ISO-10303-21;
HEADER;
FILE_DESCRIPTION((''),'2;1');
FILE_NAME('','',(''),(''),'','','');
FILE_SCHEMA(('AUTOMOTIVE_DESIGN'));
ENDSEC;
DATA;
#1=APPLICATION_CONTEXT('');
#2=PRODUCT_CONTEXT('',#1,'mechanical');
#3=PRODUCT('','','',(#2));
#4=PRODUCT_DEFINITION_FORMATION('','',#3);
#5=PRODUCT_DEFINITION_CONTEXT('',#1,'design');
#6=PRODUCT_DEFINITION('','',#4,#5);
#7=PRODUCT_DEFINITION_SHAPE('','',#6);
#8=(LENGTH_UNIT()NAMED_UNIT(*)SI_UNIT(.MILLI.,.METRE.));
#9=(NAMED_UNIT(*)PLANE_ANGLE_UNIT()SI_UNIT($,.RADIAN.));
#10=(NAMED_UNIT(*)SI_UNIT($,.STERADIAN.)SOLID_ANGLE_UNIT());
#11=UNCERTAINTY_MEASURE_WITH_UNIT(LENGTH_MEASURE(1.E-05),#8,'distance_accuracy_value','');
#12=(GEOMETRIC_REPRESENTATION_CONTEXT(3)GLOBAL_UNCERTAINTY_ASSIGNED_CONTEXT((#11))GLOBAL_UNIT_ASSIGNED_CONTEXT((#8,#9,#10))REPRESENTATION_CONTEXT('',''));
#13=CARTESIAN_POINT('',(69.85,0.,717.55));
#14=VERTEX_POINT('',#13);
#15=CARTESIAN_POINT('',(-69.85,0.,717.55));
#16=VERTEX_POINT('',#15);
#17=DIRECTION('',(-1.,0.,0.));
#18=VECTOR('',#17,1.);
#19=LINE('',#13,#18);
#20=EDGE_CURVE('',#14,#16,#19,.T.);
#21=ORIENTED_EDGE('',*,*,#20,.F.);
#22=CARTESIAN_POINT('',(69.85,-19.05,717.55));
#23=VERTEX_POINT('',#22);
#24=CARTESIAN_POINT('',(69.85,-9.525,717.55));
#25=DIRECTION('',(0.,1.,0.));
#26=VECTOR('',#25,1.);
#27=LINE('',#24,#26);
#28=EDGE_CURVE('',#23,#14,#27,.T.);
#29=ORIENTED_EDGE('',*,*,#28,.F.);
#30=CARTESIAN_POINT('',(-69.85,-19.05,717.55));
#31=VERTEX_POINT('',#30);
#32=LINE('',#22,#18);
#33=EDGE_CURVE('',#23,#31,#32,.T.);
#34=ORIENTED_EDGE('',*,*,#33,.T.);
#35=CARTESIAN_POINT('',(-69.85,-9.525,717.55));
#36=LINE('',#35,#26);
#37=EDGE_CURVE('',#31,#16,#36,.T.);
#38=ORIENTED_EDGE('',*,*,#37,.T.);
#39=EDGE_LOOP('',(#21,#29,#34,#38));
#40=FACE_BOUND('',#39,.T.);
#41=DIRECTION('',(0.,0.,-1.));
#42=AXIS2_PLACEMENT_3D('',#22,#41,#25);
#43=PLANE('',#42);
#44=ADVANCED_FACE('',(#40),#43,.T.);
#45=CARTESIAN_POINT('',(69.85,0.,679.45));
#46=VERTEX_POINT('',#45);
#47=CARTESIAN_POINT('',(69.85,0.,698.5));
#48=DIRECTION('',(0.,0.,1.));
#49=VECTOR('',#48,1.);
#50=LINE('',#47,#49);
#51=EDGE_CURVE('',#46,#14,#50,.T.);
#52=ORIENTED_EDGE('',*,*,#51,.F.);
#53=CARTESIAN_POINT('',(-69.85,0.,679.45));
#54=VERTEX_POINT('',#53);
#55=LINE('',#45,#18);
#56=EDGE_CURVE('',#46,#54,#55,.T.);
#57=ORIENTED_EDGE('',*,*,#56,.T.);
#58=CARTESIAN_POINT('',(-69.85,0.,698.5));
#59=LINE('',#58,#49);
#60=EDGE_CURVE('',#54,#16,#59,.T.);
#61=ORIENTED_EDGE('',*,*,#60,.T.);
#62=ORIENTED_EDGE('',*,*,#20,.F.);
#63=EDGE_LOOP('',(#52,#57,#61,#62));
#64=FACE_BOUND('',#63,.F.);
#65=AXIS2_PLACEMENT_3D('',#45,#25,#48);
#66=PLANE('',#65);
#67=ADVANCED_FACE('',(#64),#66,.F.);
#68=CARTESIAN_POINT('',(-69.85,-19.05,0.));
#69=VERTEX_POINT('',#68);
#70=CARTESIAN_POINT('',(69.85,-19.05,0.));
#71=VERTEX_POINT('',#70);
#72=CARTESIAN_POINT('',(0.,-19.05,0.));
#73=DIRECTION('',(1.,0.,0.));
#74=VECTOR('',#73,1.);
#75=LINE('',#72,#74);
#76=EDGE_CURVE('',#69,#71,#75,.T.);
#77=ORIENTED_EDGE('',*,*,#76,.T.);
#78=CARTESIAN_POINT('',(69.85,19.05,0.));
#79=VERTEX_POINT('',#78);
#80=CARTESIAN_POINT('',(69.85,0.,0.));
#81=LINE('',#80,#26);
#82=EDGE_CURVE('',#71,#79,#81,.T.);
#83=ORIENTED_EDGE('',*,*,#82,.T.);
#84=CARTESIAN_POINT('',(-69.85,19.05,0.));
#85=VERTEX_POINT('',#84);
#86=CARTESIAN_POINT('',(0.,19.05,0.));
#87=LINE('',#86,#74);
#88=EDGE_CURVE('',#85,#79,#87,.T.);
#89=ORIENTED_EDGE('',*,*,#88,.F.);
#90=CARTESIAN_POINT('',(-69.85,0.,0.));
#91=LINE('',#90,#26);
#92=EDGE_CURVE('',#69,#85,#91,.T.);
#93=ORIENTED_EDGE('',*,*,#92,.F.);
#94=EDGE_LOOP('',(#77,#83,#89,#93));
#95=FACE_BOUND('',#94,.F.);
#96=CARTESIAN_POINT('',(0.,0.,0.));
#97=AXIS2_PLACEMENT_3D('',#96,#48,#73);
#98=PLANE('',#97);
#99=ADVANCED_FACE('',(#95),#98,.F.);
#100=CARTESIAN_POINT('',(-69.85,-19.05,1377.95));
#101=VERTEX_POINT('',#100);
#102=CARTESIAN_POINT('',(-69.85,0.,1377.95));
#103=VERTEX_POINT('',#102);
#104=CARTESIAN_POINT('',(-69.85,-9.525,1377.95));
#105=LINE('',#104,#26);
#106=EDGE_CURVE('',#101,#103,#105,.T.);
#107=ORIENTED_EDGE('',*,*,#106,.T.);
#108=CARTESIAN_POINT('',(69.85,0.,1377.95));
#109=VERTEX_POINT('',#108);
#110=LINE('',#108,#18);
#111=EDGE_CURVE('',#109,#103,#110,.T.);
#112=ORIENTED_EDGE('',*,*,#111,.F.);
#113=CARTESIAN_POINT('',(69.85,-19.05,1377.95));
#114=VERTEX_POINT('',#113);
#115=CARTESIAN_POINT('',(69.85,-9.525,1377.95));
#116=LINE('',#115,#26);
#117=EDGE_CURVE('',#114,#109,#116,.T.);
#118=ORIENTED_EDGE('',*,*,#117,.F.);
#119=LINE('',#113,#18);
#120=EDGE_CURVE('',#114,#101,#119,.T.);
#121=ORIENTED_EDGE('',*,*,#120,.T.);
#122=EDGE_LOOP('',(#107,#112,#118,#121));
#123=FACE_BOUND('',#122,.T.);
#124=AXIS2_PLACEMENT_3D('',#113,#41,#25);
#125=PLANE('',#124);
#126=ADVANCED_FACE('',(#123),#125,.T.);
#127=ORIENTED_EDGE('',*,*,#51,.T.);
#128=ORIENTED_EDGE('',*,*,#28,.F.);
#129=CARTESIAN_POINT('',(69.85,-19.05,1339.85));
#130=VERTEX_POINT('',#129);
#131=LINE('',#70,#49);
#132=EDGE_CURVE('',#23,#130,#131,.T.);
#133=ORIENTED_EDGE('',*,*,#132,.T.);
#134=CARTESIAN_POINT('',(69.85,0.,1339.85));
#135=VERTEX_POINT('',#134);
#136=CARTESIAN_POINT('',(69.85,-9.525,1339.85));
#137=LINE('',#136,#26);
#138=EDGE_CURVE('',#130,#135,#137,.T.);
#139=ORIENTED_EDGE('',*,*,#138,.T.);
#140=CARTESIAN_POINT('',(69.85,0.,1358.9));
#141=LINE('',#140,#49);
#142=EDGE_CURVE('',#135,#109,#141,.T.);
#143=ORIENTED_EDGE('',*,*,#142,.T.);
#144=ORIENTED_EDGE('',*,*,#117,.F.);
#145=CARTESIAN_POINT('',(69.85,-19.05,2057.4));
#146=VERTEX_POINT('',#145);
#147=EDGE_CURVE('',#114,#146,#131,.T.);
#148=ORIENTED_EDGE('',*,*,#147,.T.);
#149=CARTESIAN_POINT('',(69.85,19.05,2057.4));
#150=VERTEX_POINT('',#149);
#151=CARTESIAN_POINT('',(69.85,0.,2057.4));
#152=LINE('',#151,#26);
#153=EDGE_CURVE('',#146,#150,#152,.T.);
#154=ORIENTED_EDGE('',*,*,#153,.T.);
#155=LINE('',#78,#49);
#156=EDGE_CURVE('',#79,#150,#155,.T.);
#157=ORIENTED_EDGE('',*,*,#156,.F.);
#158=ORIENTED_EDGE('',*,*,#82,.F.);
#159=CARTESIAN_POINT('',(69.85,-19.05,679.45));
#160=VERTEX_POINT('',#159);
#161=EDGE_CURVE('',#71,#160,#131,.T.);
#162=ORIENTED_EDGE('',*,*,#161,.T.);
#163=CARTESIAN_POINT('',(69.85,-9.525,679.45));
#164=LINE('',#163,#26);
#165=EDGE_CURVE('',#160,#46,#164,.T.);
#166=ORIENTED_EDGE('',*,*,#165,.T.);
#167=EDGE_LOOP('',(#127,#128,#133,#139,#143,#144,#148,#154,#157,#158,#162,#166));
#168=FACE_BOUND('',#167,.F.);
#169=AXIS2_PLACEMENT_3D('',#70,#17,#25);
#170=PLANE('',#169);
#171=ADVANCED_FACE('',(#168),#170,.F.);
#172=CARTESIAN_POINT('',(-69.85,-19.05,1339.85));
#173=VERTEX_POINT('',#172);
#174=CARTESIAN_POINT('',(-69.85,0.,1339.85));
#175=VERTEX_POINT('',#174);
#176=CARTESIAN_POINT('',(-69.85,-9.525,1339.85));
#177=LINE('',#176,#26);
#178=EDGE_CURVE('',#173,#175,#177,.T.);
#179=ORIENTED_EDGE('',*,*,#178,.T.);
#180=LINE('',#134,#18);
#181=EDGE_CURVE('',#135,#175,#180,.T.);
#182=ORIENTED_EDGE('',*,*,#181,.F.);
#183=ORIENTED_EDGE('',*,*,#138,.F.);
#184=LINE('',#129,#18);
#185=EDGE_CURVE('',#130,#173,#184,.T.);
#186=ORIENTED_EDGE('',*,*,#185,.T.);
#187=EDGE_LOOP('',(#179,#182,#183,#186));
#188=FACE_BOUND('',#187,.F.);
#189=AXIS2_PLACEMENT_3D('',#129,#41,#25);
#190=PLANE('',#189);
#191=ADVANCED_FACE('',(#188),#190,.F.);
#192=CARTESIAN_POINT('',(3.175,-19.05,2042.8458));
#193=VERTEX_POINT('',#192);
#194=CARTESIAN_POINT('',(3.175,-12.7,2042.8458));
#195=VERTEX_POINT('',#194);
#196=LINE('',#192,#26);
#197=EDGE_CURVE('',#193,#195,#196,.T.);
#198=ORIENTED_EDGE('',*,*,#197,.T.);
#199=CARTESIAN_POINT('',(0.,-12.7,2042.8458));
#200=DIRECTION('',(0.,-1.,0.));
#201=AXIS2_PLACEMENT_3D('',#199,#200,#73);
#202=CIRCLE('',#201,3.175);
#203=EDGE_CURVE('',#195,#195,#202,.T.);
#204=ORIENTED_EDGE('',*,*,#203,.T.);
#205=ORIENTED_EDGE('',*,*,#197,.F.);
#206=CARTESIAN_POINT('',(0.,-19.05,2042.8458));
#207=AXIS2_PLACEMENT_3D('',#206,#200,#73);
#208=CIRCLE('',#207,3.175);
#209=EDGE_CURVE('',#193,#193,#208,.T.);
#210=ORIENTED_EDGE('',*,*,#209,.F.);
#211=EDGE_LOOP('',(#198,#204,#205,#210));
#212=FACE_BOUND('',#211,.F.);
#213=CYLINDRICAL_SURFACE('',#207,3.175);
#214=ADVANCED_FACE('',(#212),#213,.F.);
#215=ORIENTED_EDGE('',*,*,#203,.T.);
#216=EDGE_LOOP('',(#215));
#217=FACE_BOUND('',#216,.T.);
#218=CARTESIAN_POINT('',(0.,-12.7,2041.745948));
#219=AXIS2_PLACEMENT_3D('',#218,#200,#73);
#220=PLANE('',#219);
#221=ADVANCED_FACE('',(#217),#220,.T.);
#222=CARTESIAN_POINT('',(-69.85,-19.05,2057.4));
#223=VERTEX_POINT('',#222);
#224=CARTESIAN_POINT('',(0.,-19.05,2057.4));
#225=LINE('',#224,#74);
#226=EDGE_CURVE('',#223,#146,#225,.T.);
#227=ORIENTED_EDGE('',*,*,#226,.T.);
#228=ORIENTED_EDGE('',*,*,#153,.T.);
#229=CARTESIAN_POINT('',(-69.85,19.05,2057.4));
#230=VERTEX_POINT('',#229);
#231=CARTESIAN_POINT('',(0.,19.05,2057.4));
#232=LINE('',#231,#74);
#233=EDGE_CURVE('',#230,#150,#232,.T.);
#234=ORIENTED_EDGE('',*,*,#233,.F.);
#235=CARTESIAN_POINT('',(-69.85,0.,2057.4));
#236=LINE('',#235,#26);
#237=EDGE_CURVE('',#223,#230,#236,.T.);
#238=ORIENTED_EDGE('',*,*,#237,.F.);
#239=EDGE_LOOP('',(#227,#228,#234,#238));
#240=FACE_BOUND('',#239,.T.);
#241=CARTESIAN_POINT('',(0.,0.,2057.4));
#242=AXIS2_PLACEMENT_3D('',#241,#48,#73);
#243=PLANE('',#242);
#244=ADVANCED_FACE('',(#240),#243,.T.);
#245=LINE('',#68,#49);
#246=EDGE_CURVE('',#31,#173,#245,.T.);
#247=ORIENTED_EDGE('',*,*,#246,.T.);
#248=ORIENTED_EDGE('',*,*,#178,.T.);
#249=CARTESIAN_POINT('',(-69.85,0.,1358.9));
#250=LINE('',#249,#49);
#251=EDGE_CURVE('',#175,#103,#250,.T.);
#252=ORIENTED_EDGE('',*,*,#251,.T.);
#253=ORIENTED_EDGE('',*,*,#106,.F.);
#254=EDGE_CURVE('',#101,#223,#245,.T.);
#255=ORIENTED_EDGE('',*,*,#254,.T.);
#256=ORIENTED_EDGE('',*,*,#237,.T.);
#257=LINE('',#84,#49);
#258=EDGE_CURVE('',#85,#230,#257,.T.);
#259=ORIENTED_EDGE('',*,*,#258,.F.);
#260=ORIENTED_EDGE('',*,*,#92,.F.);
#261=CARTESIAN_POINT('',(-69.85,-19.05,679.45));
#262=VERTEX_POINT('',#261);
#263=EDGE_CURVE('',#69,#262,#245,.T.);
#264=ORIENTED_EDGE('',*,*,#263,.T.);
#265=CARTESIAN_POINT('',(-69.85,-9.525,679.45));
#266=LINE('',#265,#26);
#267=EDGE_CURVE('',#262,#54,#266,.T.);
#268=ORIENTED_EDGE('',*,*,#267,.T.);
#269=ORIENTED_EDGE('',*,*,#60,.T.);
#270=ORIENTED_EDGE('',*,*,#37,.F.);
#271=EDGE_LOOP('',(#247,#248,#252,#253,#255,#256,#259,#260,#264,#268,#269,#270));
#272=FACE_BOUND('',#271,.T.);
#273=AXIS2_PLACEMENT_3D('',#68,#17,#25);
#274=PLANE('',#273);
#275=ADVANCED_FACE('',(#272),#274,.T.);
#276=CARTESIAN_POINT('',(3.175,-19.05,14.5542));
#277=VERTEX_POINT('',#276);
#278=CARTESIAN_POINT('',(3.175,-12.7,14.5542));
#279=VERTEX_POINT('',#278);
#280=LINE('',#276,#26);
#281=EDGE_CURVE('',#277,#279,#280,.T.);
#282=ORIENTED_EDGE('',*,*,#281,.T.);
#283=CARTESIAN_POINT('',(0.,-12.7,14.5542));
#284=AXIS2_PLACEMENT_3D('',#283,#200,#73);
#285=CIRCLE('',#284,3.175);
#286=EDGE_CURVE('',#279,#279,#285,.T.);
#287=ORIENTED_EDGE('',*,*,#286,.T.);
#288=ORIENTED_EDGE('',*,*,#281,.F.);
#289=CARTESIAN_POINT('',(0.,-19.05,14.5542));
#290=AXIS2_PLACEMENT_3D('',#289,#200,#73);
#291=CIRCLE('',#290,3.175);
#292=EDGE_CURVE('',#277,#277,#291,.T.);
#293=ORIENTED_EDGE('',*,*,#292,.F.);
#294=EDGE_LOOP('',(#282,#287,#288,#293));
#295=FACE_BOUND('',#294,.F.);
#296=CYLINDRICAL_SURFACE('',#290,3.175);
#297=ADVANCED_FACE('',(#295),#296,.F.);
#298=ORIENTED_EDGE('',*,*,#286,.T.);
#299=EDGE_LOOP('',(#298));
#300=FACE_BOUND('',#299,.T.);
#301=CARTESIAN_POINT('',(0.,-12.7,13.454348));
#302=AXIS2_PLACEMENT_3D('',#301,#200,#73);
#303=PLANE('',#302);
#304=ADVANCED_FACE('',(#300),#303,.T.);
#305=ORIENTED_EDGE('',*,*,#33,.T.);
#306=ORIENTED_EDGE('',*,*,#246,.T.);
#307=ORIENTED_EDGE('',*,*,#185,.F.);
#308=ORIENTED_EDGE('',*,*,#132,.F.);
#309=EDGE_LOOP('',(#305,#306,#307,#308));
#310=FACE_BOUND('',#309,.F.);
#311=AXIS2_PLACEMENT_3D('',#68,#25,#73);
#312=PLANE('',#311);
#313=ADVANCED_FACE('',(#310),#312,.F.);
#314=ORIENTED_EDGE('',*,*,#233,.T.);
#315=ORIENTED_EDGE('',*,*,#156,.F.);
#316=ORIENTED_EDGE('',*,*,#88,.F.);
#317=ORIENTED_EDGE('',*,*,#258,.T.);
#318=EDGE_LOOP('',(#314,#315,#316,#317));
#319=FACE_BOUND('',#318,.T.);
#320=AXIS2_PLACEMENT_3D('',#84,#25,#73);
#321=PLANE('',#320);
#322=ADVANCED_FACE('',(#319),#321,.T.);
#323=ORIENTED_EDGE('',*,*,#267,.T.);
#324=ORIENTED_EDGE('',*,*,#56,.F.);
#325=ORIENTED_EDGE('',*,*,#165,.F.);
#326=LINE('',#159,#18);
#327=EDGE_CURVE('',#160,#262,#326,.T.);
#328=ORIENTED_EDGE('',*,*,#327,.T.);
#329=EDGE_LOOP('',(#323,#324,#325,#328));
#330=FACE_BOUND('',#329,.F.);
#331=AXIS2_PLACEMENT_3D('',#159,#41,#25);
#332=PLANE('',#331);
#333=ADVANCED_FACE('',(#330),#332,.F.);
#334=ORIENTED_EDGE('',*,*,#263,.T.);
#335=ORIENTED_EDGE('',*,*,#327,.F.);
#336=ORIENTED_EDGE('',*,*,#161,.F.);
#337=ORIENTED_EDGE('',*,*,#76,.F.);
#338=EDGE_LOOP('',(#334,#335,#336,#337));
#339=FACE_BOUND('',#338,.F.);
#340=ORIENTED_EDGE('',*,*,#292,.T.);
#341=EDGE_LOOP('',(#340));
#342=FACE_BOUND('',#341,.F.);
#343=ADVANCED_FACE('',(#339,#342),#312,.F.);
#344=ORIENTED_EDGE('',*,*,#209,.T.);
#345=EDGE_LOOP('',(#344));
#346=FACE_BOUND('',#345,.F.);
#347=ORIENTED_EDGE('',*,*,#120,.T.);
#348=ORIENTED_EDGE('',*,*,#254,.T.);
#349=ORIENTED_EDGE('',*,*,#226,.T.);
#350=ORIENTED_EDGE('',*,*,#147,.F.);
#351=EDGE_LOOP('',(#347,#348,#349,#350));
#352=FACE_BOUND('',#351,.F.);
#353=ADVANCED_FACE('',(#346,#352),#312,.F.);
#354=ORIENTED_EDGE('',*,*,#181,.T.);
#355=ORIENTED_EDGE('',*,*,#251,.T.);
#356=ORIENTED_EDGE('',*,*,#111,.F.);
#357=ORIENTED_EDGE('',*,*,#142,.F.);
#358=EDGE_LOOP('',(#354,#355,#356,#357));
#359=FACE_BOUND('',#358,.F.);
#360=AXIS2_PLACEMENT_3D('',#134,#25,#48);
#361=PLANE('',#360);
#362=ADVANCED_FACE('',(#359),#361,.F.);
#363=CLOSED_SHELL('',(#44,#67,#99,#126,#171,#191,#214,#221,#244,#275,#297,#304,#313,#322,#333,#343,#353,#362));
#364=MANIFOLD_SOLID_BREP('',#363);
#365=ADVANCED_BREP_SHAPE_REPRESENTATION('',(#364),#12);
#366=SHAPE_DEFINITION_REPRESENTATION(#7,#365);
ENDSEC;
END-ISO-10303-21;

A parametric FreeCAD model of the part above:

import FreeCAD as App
import Part
import Sketcher
from FreeCAD import Vector
Q = App.Units.Quantity

doc = App.newDocument("Part")
body = doc.addObject("PartDesign::Body", "Body")

sketch1 = body.newObject("Sketcher::SketchObject", "Sketch")
sketch1.AttachmentSupport = (doc.getObject("XY_Plane"), [""])
sketch1.MapMode = "FlatFace"
sketch1.addGeometry([
    Part.LineSegment(Vector(-69.85, 19.05, 0), Vector(-69.85, -19.05, 0)),
    Part.LineSegment(Vector(-69.85, -19.05, 0), Vector(69.85, -19.05, 0)),
    Part.LineSegment(Vector(69.85, -19.05, 0), Vector(69.85, 19.05, 0)),
    Part.LineSegment(Vector(69.85, 19.05, 0), Vector(-69.85, 19.05, 0)),
], False)
sketch1.addConstraint([
    Sketcher.Constraint("Coincident", 0, 2, 1, 1),
    Sketcher.Constraint("Coincident", 1, 2, 2, 1),
    Sketcher.Constraint("Coincident", 2, 2, 3, 1),
    Sketcher.Constraint("Coincident", 3, 2, 0, 1),
    Sketcher.Constraint("Vertical", 0),
    Sketcher.Constraint("Horizontal", 1),
    Sketcher.Constraint("Vertical", 2),
    Sketcher.Constraint("Horizontal", 3),
    Sketcher.Constraint("Symmetric", 0, 2, 2, 2, -1, 1),
    Sketcher.Constraint("DistanceX", 1, 1, 1, 2, Q("5.5 in")),
    Sketcher.Constraint("DistanceY", 0, 2, 0, 1, Q("1.5 in")),
])
pad1 = body.newObject("PartDesign::Pad", "Pad")
pad1.Profile = sketch1
pad1.Length = Q("81 in")

sketch2 = body.newObject("Sketcher::SketchObject", "Sketch001")
sketch2.AttachmentSupport = (doc.getObject("YZ_Plane"), [""])
sketch2.MapMode = "FlatFace"
sketch2.AttachmentOffset = App.Placement(Vector(0, 0, 2.75 * 25.4), App.Rotation())
sketch2.addGeometry([
    Part.LineSegment(Vector(-19.05, 717.55, 0), Vector(-19.05, 679.45, 0)),
    Part.LineSegment(Vector(-19.05, 679.45, 0), Vector(0, 679.45, 0)),
    Part.LineSegment(Vector(0, 679.45, 0), Vector(0, 717.55, 0)),
    Part.LineSegment(Vector(0, 717.55, 0), Vector(-19.05, 717.55, 0)),
    Part.LineSegment(Vector(-19.05, 1377.95, 0), Vector(-19.05, 1339.85, 0)),
    Part.LineSegment(Vector(-19.05, 1339.85, 0), Vector(0, 1339.85, 0)),
    Part.LineSegment(Vector(0, 1339.85, 0), Vector(0, 1377.95, 0)),
    Part.LineSegment(Vector(0, 1377.95, 0), Vector(-19.05, 1377.95, 0)),
], False)
sketch2.addConstraint([
    Sketcher.Constraint("Coincident", 0, 2, 1, 1),
    Sketcher.Constraint("Coincident", 1, 2, 2, 1),
    Sketcher.Constraint("Coincident", 2, 2, 3, 1),
    Sketcher.Constraint("Coincident", 3, 2, 0, 1),
    Sketcher.Constraint("Coincident", 4, 2, 5, 1),
    Sketcher.Constraint("Coincident", 5, 2, 6, 1),
    Sketcher.Constraint("Coincident", 6, 2, 7, 1),
    Sketcher.Constraint("Coincident", 7, 2, 4, 1),
    Sketcher.Constraint("Vertical", 0),
    Sketcher.Constraint("Horizontal", 1),
    Sketcher.Constraint("Vertical", 2),
    Sketcher.Constraint("Horizontal", 3),
    Sketcher.Constraint("Vertical", 4),
    Sketcher.Constraint("Horizontal", 5),
    Sketcher.Constraint("Vertical", 6),
    Sketcher.Constraint("Horizontal", 7),
    Sketcher.Constraint("PointOnObject", 1, 2, -2),
    Sketcher.Constraint("PointOnObject", 5, 2, -2),
    Sketcher.Constraint("Vertical", 3, 2, 4, 2),
    Sketcher.Constraint("Equal", 2, 4),
    Sketcher.Constraint("DistanceY", 0, 2, 0, 1, Q("1.5 in")),
    Sketcher.Constraint("DistanceY", 0, 2, 4, 2, Q("26 in")),
    Sketcher.Constraint("DistanceX", 1, 1, 1, 2, Q("0.75 in")),
    Sketcher.Constraint("DistanceY", -1, 1, 0, 2, Q("26.75 in")),
])
pocket1 = body.newObject("PartDesign::Pocket", "Pocket")
pocket1.Profile = sketch2
pocket1.Length = Q("5.5 in")

sketch3 = body.newObject("Sketcher::SketchObject", "Sketch002")
sketch3.AttachmentSupport = (doc.getObject("XZ_Plane"), [""])
sketch3.MapMode = "FlatFace"
sketch3.AttachmentOffset = App.Placement(Vector(0, 0, 0.75 * 25.4), App.Rotation())
sketch3.addGeometry(Part.Circle(Vector(0, 2042.8458, 0), Vector(0, 0, 1), 3.175), False)
sketch3.addConstraint([
    Sketcher.Constraint("PointOnObject", 0, 3, -2),
    Sketcher.Constraint("Diameter", 0, Q("0.25 in")),
    Sketcher.Constraint("DistanceY", -1, 1, 0, 3, Q("80.427 in")),
])
pocket2 = body.newObject("PartDesign::Pocket", "Pocket001")
pocket2.Profile = sketch3
pocket2.Length = Q("0.25 in")

sketch4 = body.newObject("Sketcher::SketchObject", "Sketch003")
sketch4.AttachmentSupport = (doc.getObject("XZ_Plane"), [""])
sketch4.MapMode = "FlatFace"
sketch4.AttachmentOffset = App.Placement(Vector(0, 0, 0.75 * 25.4), App.Rotation())
sketch4.addGeometry(Part.Circle(Vector(0, 14.5542, 0), Vector(0, 0, 1), 3.175), False)
sketch4.addConstraint([
    Sketcher.Constraint("PointOnObject", 0, 3, -2),
    Sketcher.Constraint("Diameter", 0, Q("0.25 in")),
    Sketcher.Constraint("DistanceY", -1, 1, 0, 3, Q("0.573 in")),
])
pocket3 = body.newObject("PartDesign::Pocket", "Pocket002")
pocket3.Profile = sketch4
pocket3.Length = Q("0.25 in")

doc.recompute()
